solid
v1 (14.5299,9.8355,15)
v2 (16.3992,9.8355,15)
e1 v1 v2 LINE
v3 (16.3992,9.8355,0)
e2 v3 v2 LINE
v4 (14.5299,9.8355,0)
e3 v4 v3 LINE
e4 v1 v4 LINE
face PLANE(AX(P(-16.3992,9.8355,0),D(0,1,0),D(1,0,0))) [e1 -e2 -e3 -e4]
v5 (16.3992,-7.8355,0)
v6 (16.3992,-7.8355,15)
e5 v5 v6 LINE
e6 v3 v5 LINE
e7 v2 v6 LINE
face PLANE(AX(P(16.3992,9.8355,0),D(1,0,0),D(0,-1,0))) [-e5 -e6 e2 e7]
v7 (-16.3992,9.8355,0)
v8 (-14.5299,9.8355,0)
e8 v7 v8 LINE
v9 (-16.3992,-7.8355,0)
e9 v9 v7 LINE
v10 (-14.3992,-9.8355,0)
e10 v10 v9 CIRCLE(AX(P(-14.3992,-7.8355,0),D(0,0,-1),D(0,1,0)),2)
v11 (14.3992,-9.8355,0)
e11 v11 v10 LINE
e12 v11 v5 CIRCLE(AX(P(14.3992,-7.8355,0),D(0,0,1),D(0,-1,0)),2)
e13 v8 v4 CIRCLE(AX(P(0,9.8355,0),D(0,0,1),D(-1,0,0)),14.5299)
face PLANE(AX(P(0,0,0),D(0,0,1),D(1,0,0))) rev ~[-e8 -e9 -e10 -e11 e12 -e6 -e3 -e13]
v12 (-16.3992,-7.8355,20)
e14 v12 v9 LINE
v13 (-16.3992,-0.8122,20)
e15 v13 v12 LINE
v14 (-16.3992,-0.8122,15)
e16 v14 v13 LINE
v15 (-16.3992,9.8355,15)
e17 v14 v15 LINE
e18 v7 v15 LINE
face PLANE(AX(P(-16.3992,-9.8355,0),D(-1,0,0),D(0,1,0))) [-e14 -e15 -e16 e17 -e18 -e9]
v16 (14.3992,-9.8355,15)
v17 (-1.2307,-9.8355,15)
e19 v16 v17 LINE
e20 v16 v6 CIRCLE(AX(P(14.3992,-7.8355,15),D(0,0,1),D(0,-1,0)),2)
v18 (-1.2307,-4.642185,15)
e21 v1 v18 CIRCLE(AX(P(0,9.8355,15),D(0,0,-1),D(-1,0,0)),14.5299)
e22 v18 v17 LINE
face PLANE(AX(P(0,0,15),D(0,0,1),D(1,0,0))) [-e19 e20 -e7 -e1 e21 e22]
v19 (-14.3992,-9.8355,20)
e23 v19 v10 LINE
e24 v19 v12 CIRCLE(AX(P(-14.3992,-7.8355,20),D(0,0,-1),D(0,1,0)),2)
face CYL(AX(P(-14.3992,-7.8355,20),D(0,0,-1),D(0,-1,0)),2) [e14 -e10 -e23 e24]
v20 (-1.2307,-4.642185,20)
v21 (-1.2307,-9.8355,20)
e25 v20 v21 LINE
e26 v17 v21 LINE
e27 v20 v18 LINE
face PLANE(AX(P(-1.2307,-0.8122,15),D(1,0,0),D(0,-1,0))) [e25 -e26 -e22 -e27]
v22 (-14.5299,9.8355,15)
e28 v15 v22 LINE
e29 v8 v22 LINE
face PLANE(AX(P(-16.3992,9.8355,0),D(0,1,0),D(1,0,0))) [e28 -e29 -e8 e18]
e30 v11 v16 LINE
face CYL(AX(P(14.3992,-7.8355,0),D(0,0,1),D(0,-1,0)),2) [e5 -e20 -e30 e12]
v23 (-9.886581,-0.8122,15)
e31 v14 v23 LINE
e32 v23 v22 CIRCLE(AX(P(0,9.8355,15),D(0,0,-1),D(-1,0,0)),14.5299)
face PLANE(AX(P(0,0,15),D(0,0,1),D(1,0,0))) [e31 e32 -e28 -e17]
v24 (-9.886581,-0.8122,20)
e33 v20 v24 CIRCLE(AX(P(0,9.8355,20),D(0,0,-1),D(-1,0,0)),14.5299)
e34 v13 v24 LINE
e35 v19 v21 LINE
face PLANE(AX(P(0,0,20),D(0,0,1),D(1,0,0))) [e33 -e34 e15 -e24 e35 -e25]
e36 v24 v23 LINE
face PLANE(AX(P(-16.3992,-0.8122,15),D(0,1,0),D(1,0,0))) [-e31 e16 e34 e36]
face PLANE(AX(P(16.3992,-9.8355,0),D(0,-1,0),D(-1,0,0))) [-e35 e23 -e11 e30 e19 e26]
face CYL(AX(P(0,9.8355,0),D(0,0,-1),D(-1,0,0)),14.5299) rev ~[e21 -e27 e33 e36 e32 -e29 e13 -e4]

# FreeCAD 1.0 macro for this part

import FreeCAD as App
import Part
import Sketcher
Q = App.Units.Quantity


def edges_at(feature, points):
    """Names of the edges that pass closest to the given points."""
    edges = feature.Shape.Edges
    near = lambda p: min(range(len(edges)), key=lambda i: edges[i].distToShape(Part.Vertex(*p))[0])
    return sorted({f"Edge{near(p) + 1}" for p in points})

doc = App.newDocument("Part")
params = doc.addObject("Spreadsheet::Sheet", "Params")
for row, (alias, value) in enumerate([
    ("pad1_length", "15 mm"),
    ("pad2_length", "5 mm"),
    ("pocket1_length", "20 mm"),
    ("fillet_radius", "2 mm"),
    ("fillet2_radius", "2 mm"),
], start=1):
    params.set(f"A{row}", alias)
    params.set(f"B{row}", "=" + value)
    params.setAlias(f"B{row}", alias)

body = doc.addObject("PartDesign::Body", "Body")

# Sketch on XY plane
sketch1 = body.newObject("Sketcher::SketchObject", "Sketch")
sketch1.AttachmentSupport = (doc.getObject("XY_Plane"), [""])
sketch1.MapMode = "FlatFace"
sketch1.addGeometry([
    Part.LineSegment(App.Vector(-16, -10, 0), App.Vector(16, -10, 0)),
    Part.LineSegment(App.Vector(16, -10, 0), App.Vector(16, 10, 0)),
    Part.LineSegment(App.Vector(16, 10, 0), App.Vector(-16, 10, 0)),
    Part.LineSegment(App.Vector(-16, 10, 0), App.Vector(-16, -10, 0)),
], False)
sketch1.addConstraint([
    Sketcher.Constraint("Coincident", 0, 2, 1, 1),
    Sketcher.Constraint("Coincident", 1, 2, 2, 1),
    Sketcher.Constraint("Coincident", 2, 2, 3, 1),
    Sketcher.Constraint("Coincident", 3, 2, 0, 1),
    Sketcher.Constraint("Horizontal", 0),
    Sketcher.Constraint("Vertical", 1),
    Sketcher.Constraint("Horizontal", 2),
    Sketcher.Constraint("Vertical", 3),
    Sketcher.Constraint("Symmetric", 0, 2, 2, 2, -1, 1),
    Sketcher.Constraint("DistanceY", 1, 1, 1, 2, Q("19.671 mm")),
    Sketcher.Constraint("DistanceX", 0, 1, 0, 2, Q("32.7984 mm")),
])
pad1 = body.newObject("PartDesign::Pad", "Pad")
pad1.Profile = sketch1
pad1.setExpression("Length", "Params.pad1_length")

# Sketch on XY plane
sketch2 = body.newObject("Sketcher::SketchObject", "Sketch001")
sketch2.AttachmentSupport = (doc.getObject("XY_Plane"), [""])
sketch2.MapMode = "FlatFace"
sketch2.AttachmentOffset = App.Placement(App.Vector(0, 0, 15), App.Rotation())
sketch2.addGeometry([
    Part.LineSegment(App.Vector(-1, -1, 0), App.Vector(-16, -1, 0)),
    Part.LineSegment(App.Vector(-16, -1, 0), App.Vector(-16, -10, 0)),
    Part.LineSegment(App.Vector(-16, -10, 0), App.Vector(-1, -10, 0)),
    Part.LineSegment(App.Vector(-1, -10, 0), App.Vector(-1, -1, 0)),
], False)
sketch2.addConstraint([
    Sketcher.Constraint("Coincident", 0, 2, 1, 1),
    Sketcher.Constraint("Coincident", 1, 2, 2, 1),
    Sketcher.Constraint("Coincident", 2, 2, 3, 1),
    Sketcher.Constraint("Coincident", 3, 2, 0, 1),
    Sketcher.Constraint("Horizontal", 0),
    Sketcher.Constraint("Vertical", 1),
    Sketcher.Constraint("Horizontal", 2),
    Sketcher.Constraint("Vertical", 3),
    Sketcher.Constraint("DistanceX", 0, 2, 0, 1, Q("15.1685 mm")),
    Sketcher.Constraint("DistanceY", 1, 2, 1, 1, Q("9.0233 mm")),
    Sketcher.Constraint("DistanceX", 0, 2, -1, 1, Q("16.3992 mm")),
    Sketcher.Constraint("DistanceY", 0, 2, -1, 1, Q("0.8122 mm")),
])
pad2 = body.newObject("PartDesign::Pad", "Pad001")
pad2.Profile = sketch2
pad2.setExpression("Length", "Params.pad2_length")

# Sketch on XY plane
sketch3 = body.newObject("Sketcher::SketchObject", "Sketch002")
sketch3.AttachmentSupport = (doc.getObject("XY_Plane"), [""])
sketch3.MapMode = "FlatFace"
sketch3.addGeometry(Part.Circle(App.Vector(0, 10, 0), App.Vector(0, 0, 1), 15), False)
sketch3.addConstraint([
    Sketcher.Constraint("PointOnObject", 0, 3, -2),
    Sketcher.Constraint("Diameter", 0, Q("29.0598 mm")),
    Sketcher.Constraint("DistanceY", -1, 1, 0, 3, Q("9.8355 mm")),
])
pocket1 = body.newObject("PartDesign::Pocket", "Pocket")
pocket1.Profile = sketch3
pocket1.setExpression("Length", "Params.pocket1_length")
pocket1.Reversed = True
doc.recompute()

fillet = body.newObject("PartDesign::Fillet", "Fillet")
fillet.Base = (pocket1, edges_at(pocket1, [(16.399, -9.835, 7.5)]))
fillet.setExpression("Radius", "Params.fillet_radius")
doc.recompute()

fillet2 = body.newObject("PartDesign::Fillet", "Fillet001")
fillet2.Base = (fillet, edges_at(fillet, [(-16.399, -9.835, 10)]))
fillet2.setExpression("Radius", "Params.fillet2_radius")

doc.recompute()
